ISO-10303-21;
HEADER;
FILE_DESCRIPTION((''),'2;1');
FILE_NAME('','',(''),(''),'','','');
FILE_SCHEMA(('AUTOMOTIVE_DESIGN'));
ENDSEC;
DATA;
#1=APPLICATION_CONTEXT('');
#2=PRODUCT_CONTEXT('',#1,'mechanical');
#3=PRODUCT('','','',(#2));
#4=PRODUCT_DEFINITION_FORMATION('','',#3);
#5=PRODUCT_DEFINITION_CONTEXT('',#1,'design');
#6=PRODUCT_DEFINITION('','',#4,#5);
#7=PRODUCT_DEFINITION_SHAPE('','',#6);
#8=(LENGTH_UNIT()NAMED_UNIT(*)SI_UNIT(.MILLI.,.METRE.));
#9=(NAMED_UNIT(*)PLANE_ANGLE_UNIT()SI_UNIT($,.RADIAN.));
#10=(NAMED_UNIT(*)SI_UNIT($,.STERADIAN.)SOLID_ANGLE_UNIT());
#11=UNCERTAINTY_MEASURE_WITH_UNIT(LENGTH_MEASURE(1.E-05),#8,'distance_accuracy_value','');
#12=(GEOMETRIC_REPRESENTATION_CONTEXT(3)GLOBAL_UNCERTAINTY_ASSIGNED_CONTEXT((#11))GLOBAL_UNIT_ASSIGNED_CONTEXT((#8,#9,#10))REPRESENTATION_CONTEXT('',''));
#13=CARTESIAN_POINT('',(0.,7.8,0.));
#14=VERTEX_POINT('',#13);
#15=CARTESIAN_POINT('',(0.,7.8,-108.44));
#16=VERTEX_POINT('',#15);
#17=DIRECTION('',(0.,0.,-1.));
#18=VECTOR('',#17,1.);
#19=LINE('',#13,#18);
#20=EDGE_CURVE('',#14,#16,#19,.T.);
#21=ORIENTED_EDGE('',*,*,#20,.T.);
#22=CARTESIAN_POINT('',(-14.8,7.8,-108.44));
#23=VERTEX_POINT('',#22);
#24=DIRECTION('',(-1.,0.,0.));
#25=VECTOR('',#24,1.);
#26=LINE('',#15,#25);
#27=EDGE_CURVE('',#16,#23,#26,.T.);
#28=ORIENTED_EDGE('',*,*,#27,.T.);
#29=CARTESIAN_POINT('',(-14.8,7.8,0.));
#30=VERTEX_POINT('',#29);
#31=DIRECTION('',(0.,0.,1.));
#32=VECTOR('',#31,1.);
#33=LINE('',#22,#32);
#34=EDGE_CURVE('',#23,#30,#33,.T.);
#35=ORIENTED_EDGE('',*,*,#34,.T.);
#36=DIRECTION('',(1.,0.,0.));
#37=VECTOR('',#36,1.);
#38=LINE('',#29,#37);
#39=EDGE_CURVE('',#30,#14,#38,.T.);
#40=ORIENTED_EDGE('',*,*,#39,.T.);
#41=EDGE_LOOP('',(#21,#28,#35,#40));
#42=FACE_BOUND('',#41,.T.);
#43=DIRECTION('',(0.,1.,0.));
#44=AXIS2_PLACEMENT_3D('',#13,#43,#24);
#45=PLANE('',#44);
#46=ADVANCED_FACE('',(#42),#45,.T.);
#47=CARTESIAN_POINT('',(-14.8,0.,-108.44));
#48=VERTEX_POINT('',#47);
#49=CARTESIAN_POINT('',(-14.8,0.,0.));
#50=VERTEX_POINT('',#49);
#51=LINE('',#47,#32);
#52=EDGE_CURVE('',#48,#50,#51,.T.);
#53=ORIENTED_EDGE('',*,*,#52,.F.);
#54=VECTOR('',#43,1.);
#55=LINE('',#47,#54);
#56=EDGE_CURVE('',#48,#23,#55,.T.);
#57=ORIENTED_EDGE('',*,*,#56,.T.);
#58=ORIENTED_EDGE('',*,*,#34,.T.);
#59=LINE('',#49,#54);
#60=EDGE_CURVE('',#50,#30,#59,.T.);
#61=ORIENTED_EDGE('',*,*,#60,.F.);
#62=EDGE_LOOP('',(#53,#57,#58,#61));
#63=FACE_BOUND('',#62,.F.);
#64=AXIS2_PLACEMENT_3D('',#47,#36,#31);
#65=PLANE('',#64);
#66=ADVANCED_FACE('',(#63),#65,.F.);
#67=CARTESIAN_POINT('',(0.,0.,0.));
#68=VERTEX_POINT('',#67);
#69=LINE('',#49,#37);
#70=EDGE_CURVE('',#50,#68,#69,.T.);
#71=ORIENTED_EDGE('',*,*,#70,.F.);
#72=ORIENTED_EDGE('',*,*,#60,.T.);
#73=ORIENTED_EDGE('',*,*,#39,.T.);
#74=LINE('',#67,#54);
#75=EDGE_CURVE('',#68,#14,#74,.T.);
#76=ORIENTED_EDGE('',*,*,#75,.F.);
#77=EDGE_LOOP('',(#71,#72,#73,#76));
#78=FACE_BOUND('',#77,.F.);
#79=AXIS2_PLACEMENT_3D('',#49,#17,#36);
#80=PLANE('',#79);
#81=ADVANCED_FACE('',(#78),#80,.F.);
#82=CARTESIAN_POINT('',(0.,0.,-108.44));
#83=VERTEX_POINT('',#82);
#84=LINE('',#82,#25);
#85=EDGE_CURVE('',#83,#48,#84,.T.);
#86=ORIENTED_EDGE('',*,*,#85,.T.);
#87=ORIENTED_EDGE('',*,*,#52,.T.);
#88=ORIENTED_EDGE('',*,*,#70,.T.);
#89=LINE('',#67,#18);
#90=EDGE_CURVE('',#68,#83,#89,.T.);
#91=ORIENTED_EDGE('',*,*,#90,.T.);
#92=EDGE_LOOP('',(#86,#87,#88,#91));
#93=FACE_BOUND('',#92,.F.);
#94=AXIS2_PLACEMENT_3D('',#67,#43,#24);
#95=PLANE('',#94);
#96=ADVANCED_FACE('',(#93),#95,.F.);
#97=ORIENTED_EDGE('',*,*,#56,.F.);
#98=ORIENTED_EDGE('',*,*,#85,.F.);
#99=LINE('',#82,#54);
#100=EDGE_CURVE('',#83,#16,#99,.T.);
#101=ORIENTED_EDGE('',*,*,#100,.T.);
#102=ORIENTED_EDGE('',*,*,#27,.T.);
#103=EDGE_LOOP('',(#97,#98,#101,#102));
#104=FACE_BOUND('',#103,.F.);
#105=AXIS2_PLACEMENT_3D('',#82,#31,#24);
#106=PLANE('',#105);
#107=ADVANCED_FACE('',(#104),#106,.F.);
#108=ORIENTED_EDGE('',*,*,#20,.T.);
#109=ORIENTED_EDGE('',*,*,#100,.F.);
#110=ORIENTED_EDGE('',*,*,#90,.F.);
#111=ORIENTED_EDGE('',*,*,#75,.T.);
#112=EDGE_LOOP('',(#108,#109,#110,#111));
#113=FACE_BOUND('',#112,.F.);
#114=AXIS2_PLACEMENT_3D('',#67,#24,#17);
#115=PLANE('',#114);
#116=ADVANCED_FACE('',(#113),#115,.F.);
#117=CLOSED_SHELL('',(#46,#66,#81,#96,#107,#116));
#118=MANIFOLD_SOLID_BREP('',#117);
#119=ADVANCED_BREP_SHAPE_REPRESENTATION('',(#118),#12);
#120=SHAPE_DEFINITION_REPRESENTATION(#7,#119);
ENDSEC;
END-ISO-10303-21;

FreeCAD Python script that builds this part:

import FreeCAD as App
import Part
import Sketcher
Q = App.Units.Quantity

doc = App.newDocument("Part")
body = doc.addObject("PartDesign::Body", "Body")

# Sketch on XZ plane
sketch1 = body.newObject("Sketcher::SketchObject", "Sketch")
sketch1.AttachmentSupport = (doc.getObject("XZ_Plane"), [""])
sketch1.MapMode = "FlatFace"
sketch1.addGeometry([
    Part.LineSegment(App.Vector(-15, -108, 0), App.Vector(-15, 0, 0)),
    Part.LineSegment(App.Vector(-15, 0, 0), App.Vector(0, 0, 0)),
    Part.LineSegment(App.Vector(0, 0, 0), App.Vector(0, -108, 0)),
    Part.LineSegment(App.Vector(0, -108, 0), App.Vector(-15, -108, 0)),
], False)
sketch1.addConstraint([
    Sketcher.Constraint("Coincident", 0, 2, 1, 1),
    Sketcher.Constraint("Coincident", 1, 2, 2, 1),
    Sketcher.Constraint("Coincident", 2, 2, 3, 1),
    Sketcher.Constraint("Coincident", 3, 2, 0, 1),
    Sketcher.Constraint("Vertical", 0),
    Sketcher.Constraint("Horizontal", 1),
    Sketcher.Constraint("Vertical", 2),
    Sketcher.Constraint("Horizontal", 3),
    Sketcher.Constraint("Coincident", 1, 2, -1, 1),
    Sketcher.Constraint("DistanceX", 1, 1, 1, 2, Q("14.8 mm")),
    Sketcher.Constraint("DistanceY", 0, 1, 0, 2, Q("108.44 mm")),
])
pad1 = body.newObject("PartDesign::Pad", "Pad")
pad1.Profile = sketch1
pad1.Length = 7.8
pad1.Reversed = True

doc.recompute()
